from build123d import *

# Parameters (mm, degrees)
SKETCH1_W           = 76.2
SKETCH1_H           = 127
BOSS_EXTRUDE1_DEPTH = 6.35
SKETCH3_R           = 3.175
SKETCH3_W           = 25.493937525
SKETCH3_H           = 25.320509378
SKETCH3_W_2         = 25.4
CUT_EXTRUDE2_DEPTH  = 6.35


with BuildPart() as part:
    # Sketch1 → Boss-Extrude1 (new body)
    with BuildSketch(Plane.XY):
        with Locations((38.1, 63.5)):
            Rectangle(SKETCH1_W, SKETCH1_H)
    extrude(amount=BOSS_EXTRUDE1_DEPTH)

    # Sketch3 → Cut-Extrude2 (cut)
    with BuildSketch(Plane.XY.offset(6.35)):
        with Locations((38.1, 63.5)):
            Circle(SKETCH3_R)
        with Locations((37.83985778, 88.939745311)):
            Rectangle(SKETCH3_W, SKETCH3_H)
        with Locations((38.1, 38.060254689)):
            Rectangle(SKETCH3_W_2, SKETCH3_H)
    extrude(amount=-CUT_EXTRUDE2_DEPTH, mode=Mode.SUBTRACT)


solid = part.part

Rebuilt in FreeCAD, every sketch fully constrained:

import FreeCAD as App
import Part
import Sketcher
from FreeCAD import Vector
Q = App.Units.Quantity


def add_polygon(sketch, points):
    """Adds a closed chain of lines whose ends are joined by coincident constraints."""
    first, n = sketch.GeometryCount, len(points)
    for a, b in zip(points, points[1:] + points[:1]):
        sketch.addGeometry(Part.LineSegment(App.Vector(*a, 0), App.Vector(*b, 0)), False)
    for i in range(n):
        sketch.addConstraint(Sketcher.Constraint("Coincident", first + i, 2, first + (i + 1) % n, 1))

doc = App.newDocument("Part")
body = doc.addObject("PartDesign::Body", "Body")

sketch1 = body.newObject("Sketcher::SketchObject", "Sketch")
sketch1.AttachmentSupport = (doc.getObject("XY_Plane"), [""])
sketch1.MapMode = "FlatFace"
add_polygon(sketch1, [(0, 127), (0, 0), (76, 0), (76, 127)])
sketch1.addConstraint([
    Sketcher.Constraint("Vertical", 0),
    Sketcher.Constraint("Horizontal", 1),
    Sketcher.Constraint("Vertical", 2),
    Sketcher.Constraint("Horizontal", 3),
    Sketcher.Constraint("Coincident", 0, 2, -1, 1),
    Sketcher.Constraint("DistanceX", 1, 1, 1, 2, Q("3 in")),
    Sketcher.Constraint("DistanceY", 0, 2, 0, 1, Q("5 in")),
])
pad1 = body.newObject("PartDesign::Pad", "Pad")
pad1.Profile = sketch1
pad1.Length = Q("0.25 in")

sketch2 = body.newObject("Sketcher::SketchObject", "Sketch001")
sketch2.AttachmentSupport = (doc.getObject("XY_Plane"), [""])
sketch2.MapMode = "FlatFace"
sketch2.AttachmentOffset = App.Placement(Vector(0, 0, 0.25 * 25.4), App.Rotation())
sketch2.addGeometry(Part.Circle(Vector(38.1, 63.5, 0), Vector(0, 0, 1), 3.2), False)
add_polygon(sketch2, [(25.1, 101.6), (25.1, 76.3), (50.6, 76.3), (50.6, 101.6)])
add_polygon(sketch2, [(25.4, 50.7), (25.4, 25.4), (50.8, 25.4), (50.8, 50.7)])
sketch2.addConstraint([
    Sketcher.Constraint("Vertical", 1),
    Sketcher.Constraint("Horizontal", 2),
    Sketcher.Constraint("Vertical", 3),
    Sketcher.Constraint("Horizontal", 4),
    Sketcher.Constraint("Vertical", 5),
    Sketcher.Constraint("Horizontal", 6),
    Sketcher.Constraint("Vertical", 7),
    Sketcher.Constraint("Horizontal", 8),
    Sketcher.Constraint("Equal", 3, 5),
    Sketcher.Constraint("Diameter", 0, Q("0.25 in")),
    Sketcher.Constraint("DistanceX", 6, 1, 6, 2, Q("1 in")),
    Sketcher.Constraint("DistanceY", -1, 1, 3, 2, Q("4 in")),
    Sketcher.Constraint("DistanceX", -1, 1, 5, 2, Q("1 in")),
    Sketcher.Constraint("DistanceY", -1, 1, 5, 2, Q("1 in")),
    Sketcher.Constraint("DistanceX", -1, 1, 0, 3, Q("1.5 in")),
    Sketcher.Constraint("DistanceY", -1, 1, 0, 3, Q("2.5 in")),
    Sketcher.Constraint("DistanceY", 1, 2, 1, 1, 25.320509),
    Sketcher.Constraint("DistanceX", 2, 1, 2, 2, 25.493938),
    Sketcher.Constraint("DistanceX", -1, 1, 1, 2, 25.092889),
])
pocket1 = body.newObject("PartDesign::Pocket", "Pocket")
pocket1.Profile = sketch2
pocket1.Length = Q("0.25 in")

doc.recompute()
